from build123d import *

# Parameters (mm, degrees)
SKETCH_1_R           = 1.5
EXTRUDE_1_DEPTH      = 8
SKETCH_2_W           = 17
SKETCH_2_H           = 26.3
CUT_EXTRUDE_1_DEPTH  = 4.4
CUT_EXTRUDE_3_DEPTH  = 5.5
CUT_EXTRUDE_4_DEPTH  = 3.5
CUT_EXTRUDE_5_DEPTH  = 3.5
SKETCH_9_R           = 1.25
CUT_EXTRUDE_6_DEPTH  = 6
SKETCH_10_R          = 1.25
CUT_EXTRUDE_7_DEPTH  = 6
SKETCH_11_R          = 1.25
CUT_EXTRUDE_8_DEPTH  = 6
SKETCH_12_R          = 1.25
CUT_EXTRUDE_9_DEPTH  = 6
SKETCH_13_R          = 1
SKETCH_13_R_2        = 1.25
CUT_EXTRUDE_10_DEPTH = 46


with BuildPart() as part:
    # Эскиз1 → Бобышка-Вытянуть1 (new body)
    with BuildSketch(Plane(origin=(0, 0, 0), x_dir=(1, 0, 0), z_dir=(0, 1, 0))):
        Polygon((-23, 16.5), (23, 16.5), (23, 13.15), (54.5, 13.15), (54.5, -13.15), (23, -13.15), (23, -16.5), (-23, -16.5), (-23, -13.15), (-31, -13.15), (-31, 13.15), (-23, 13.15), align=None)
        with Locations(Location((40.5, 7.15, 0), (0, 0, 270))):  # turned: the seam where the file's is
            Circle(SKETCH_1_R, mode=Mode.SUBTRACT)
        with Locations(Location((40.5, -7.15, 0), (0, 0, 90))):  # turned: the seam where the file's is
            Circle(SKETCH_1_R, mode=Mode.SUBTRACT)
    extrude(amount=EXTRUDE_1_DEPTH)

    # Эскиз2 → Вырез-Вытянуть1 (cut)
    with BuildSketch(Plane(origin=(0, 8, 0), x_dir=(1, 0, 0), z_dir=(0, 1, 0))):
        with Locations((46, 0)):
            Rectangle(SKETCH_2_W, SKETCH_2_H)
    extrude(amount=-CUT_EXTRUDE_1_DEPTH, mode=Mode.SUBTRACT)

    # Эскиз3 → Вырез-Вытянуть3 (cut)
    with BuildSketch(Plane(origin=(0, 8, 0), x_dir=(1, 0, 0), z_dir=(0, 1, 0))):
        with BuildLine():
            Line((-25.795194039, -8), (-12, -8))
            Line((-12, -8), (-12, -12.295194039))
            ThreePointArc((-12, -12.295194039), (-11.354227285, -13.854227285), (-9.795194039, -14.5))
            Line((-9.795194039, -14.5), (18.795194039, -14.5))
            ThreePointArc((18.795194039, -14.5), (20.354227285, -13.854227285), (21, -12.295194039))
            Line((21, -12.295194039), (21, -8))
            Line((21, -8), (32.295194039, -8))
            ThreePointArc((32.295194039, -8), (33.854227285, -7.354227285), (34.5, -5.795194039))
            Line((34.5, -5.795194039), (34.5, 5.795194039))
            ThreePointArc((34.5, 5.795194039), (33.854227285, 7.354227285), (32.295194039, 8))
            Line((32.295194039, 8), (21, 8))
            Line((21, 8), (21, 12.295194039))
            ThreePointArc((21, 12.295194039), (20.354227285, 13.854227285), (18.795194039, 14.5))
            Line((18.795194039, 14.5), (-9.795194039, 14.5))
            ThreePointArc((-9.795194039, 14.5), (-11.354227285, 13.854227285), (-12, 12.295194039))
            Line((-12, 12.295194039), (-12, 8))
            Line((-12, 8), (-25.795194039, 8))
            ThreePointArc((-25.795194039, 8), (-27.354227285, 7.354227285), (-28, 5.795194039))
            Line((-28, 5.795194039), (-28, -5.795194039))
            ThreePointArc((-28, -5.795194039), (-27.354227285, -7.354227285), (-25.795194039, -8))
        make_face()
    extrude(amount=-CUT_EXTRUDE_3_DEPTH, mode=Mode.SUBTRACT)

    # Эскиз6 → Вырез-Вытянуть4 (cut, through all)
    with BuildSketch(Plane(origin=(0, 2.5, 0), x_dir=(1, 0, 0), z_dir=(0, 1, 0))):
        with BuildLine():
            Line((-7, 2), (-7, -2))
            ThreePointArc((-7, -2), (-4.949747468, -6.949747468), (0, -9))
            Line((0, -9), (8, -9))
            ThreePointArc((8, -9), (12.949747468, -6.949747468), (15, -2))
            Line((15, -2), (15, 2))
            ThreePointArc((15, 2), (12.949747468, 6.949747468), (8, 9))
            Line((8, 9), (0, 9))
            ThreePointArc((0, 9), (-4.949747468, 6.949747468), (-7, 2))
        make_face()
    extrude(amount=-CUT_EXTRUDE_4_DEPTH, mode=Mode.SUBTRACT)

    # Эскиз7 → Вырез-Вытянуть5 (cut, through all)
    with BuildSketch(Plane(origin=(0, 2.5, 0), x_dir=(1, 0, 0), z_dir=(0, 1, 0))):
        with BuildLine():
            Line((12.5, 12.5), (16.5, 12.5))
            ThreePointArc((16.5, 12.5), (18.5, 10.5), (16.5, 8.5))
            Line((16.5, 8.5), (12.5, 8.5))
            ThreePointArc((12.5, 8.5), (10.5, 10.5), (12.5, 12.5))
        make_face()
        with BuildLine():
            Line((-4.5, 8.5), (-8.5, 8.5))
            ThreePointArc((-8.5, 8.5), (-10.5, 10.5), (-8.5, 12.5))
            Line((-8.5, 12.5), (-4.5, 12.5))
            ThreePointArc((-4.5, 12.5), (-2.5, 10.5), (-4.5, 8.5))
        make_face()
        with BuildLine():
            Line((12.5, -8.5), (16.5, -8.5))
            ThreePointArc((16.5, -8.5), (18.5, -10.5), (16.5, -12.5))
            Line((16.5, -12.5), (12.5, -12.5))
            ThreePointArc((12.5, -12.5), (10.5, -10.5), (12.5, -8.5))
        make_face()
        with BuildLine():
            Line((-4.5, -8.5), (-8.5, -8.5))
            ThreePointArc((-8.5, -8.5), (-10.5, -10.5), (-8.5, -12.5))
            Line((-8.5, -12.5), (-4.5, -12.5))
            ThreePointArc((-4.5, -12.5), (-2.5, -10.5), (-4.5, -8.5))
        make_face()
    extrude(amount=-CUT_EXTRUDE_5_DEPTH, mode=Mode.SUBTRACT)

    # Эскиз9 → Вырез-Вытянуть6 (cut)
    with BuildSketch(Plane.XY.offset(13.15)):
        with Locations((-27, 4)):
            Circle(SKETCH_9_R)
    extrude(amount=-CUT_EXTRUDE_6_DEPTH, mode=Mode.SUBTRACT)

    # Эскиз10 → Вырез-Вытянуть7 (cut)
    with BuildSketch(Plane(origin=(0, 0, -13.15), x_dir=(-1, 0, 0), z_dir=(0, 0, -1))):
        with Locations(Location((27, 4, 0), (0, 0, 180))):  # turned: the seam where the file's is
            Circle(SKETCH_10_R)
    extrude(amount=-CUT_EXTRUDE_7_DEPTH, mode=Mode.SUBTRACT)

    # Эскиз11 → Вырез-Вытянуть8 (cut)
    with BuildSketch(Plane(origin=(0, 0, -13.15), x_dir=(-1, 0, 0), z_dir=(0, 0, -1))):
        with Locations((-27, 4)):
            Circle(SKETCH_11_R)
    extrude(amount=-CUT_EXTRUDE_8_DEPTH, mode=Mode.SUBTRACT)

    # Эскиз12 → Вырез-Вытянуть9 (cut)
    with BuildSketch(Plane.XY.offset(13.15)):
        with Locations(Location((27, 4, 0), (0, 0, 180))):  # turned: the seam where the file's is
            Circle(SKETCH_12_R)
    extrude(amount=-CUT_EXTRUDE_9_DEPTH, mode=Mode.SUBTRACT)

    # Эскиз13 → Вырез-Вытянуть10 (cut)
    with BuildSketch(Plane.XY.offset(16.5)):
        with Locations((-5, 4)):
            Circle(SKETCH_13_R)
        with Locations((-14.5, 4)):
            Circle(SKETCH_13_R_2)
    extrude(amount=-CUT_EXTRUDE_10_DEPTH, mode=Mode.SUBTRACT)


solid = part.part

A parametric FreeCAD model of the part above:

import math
import FreeCAD as App
import Part
import Sketcher
from FreeCAD import Vector


def add_polygon(sketch, points):
    """Adds a closed chain of lines whose ends are joined by coincident constraints."""
    first, n = sketch.GeometryCount, len(points)
    for a, b in zip(points, points[1:] + points[:1]):
        sketch.addGeometry(Part.LineSegment(App.Vector(*a, 0), App.Vector(*b, 0)), False)
    for i in range(n):
        sketch.addConstraint(Sketcher.Constraint("Coincident", first + i, 2, first + (i + 1) % n, 1))

doc = App.newDocument("Part")
body = doc.addObject("PartDesign::Body", "Body")

sketch1 = body.newObject("Sketcher::SketchObject", "Sketch")
sketch1.AttachmentSupport = (doc.getObject("XZ_Plane"), [""])
sketch1.MapMode = "FlatFace"
add_polygon(sketch1, [(23, -16.5), (-23, -16.5), (-23, -13.2), (-31, -13.2), (-31, 13.2), (-23, 13.2), (-23, 16.5), (23, 16.5), (23, 13.2), (54.5, 13.2), (54.5, -13.2), (23, -13.2)])
sketch1.addGeometry(Part.Circle(Vector(40.5, 7.2, 0), Vector(0, 0, 1), 1.5), False)
sketch1.addGeometry(Part.Circle(Vector(40.5, -7.2, 0), Vector(0, 0, 1), 1.5), False)
sketch1.addConstraint([
    Sketcher.Constraint("Horizontal", 0),
    Sketcher.Constraint("Vertical", 1),
    Sketcher.Constraint("Horizontal", 2),
    Sketcher.Constraint("Vertical", 3),
    Sketcher.Constraint("Horizontal", 4),
    Sketcher.Constraint("Vertical", 5),
    Sketcher.Constraint("Horizontal", 6),
    Sketcher.Constraint("Vertical", 7),
    Sketcher.Constraint("Horizontal", 8),
    Sketcher.Constraint("Vertical", 9),
    Sketcher.Constraint("Horizontal", 10),
    Sketcher.Constraint("Vertical", 11),
    Sketcher.Constraint("Equal", 12, 13),
    Sketcher.Constraint("Symmetric", 0, 2, 6, 2, -1, 1),
    Sketcher.Constraint("Symmetric", 4, 2, 10, 2, -1, 1),
    Sketcher.Constraint("Symmetric", 4, 2, 7, 2, -2),
    Sketcher.Constraint("Symmetric", 12, 3, 13, 3, -1),
    Sketcher.Constraint("Horizontal", 2, 2, 9, 2),
    Sketcher.Constraint("Diameter", 12, 3.0),
    Sketcher.Constraint("DistanceX", 0, 2, 0, 1, 46.0),
    Sketcher.Constraint("DistanceX", 2, 2, 2, 1, 8.0),
    Sketcher.Constraint("DistanceX", 8, 1, 8, 2, 31.5),
    Sketcher.Constraint("DistanceY", 3, 1, 3, 2, 26.3),
    Sketcher.Constraint("DistanceY", 1, 2, 13, 3, 6.0),
    Sketcher.Constraint("DistanceY", 0, 2, 5, 2, 33.0),
    Sketcher.Constraint("DistanceX", 12, 3, 8, 2, 14.0),
])
pad1 = body.newObject("PartDesign::Pad", "Pad")
pad1.Profile = sketch1
pad1.Length = 8
pad1.Reversed = True

sketch2 = body.newObject("Sketcher::SketchObject", "Sketch001")
sketch2.AttachmentSupport = (doc.getObject("XZ_Plane"), [""])
sketch2.MapMode = "FlatFace"
sketch2.AttachmentOffset = App.Placement(Vector(0, 0, -8), App.Rotation())
add_polygon(sketch2, [(38, -13), (38, 13), (54, 13), (54, -13)])
sketch2.addConstraint([
    Sketcher.Constraint("Vertical", 0),
    Sketcher.Constraint("Horizontal", 1),
    Sketcher.Constraint("Vertical", 2),
    Sketcher.Constraint("Horizontal", 3),
    Sketcher.Constraint("DistanceX", 1, 1, 1, 2, 17.0),
    Sketcher.Constraint("DistanceY", 0, 1, 0, 2, 26.3),
    Sketcher.Constraint("DistanceX", -1, 1, 0, 2, 37.5),
    Sketcher.Constraint("DistanceY", -1, 1, 0, 2, 13.15),
])
pocket1 = body.newObject("PartDesign::Pocket", "Pocket")
pocket1.Profile = sketch2
pocket1.Length = 4.4
pocket1.Reversed = True

sketch3 = body.newObject("Sketcher::SketchObject", "Sketch002")
sketch3.AttachmentSupport = (doc.getObject("XZ_Plane"), [""])
sketch3.MapMode = "FlatFace"
sketch3.AttachmentOffset = App.Placement(Vector(0, 0, -8), App.Rotation())
sketch3.addGeometry([
    Part.LineSegment(Vector(-25.8, 8, 0), Vector(-12, 8, 0)),
    Part.LineSegment(Vector(-12, 8, 0), Vector(-12, 12.3, 0)),
    Part.ArcOfCircle(Part.Circle(Vector(-9.8, 12.3, 0), Vector(0, 0, 1), 2.2), math.radians(90), math.radians(180)),
    Part.LineSegment(Vector(-9.8, 14.5, 0), Vector(18.8, 14.5, 0)),
    Part.ArcOfCircle(Part.Circle(Vector(18.8, 12.3, 0), Vector(0, 0, 1), 2.2), math.radians(0), math.radians(90)),
    Part.LineSegment(Vector(21, 12.3, 0), Vector(21, 8, 0)),
    Part.LineSegment(Vector(21, 8, 0), Vector(32.3, 8, 0)),
    Part.ArcOfCircle(Part.Circle(Vector(32.3, 5.8, 0), Vector(0, 0, 1), 2.2), math.radians(0), math.radians(90)),
    Part.LineSegment(Vector(34.5, 5.8, 0), Vector(34.5, -5.8, 0)),
    Part.ArcOfCircle(Part.Circle(Vector(32.3, -5.8, 0), Vector(0, 0, 1), 2.2), math.radians(-90), math.radians(0)),
    Part.LineSegment(Vector(32.3, -8, 0), Vector(21, -8, 0)),
    Part.LineSegment(Vector(21, -8, 0), Vector(21, -12.3, 0)),
    Part.ArcOfCircle(Part.Circle(Vector(18.8, -12.3, 0), Vector(0, 0, 1), 2.2), math.radians(-90), math.radians(0)),
    Part.LineSegment(Vector(18.8, -14.5, 0), Vector(-9.8, -14.5, 0)),
    Part.ArcOfCircle(Part.Circle(Vector(-9.8, -12.3, 0), Vector(0, 0, 1), 2.2), math.radians(-180), math.radians(-90)),
    Part.LineSegment(Vector(-12, -12.3, 0), Vector(-12, -8, 0)),
    Part.LineSegment(Vector(-12, -8, 0), Vector(-25.8, -8, 0)),
    Part.ArcOfCircle(Part.Circle(Vector(-25.8, -5.8, 0), Vector(0, 0, 1), 2.2), math.radians(-180), math.radians(-90)),
    Part.LineSegment(Vector(-28, -5.8, 0), Vector(-28, 5.8, 0)),
    Part.ArcOfCircle(Part.Circle(Vector(-25.8, 5.8, 0), Vector(0, 0, 1), 2.2), math.radians(90), math.radians(180)),
], False)
sketch3.addConstraint([
    Sketcher.Constraint("Coincident", 0, 2, 1, 1),
    Sketcher.Constraint("Tangent", 1, 2, 2, 2),
    Sketcher.Constraint("Tangent", 2, 1, 3, 1),
    Sketcher.Constraint("Tangent", 3, 2, 4, 2),
    Sketcher.Constraint("Tangent", 4, 1, 5, 1),
    Sketcher.Constraint("Coincident", 5, 2, 6, 1),
    Sketcher.Constraint("Tangent", 6, 2, 7, 2),
    Sketcher.Constraint("Tangent", 7, 1, 8, 1),
    Sketcher.Constraint("Tangent", 8, 2, 9, 2),
    Sketcher.Constraint("Tangent", 9, 1, 10, 1),
    Sketcher.Constraint("Coincident", 10, 2, 11, 1),
    Sketcher.Constraint("Tangent", 11, 2, 12, 2),
    Sketcher.Constraint("Tangent", 12, 1, 13, 1),
    Sketcher.Constraint("Tangent", 13, 2, 14, 2),
    Sketcher.Constraint("Tangent", 14, 1, 15, 1),
    Sketcher.Constraint("Coincident", 15, 2, 16, 1),
    Sketcher.Constraint("Tangent", 16, 2, 17, 2),
    Sketcher.Constraint("Tangent", 17, 1, 18, 1),
    Sketcher.Constraint("Tangent", 18, 2, 19, 2),
    Sketcher.Constraint("Tangent", 19, 1, 0, 1),
    Sketcher.Constraint("Horizontal", 0),
    Sketcher.Constraint("Vertical", 1),
    Sketcher.Constraint("Horizontal", 3),
    Sketcher.Constraint("Vertical", 5),
    Sketcher.Constraint("Horizontal", 6),
    Sketcher.Constraint("Vertical", 8),
    Sketcher.Constraint("Horizontal", 10),
    Sketcher.Constraint("Vertical", 11),
    Sketcher.Constraint("Horizontal", 13),
    Sketcher.Constraint("Vertical", 15),
    Sketcher.Constraint("Horizontal", 16),
    Sketcher.Constraint("Vertical", 18),
    Sketcher.Constraint("Equal", 2, 4),
    Sketcher.Constraint("Equal", 4, 7),
    Sketcher.Constraint("Equal", 7, 9),
    Sketcher.Constraint("Equal", 9, 12),
    Sketcher.Constraint("Equal", 12, 14),
    Sketcher.Constraint("Equal", 14, 17),
    Sketcher.Constraint("Equal", 17, 19),
    Sketcher.Constraint("Symmetric", 4, 3, 12, 3, -1),
    Sketcher.Constraint("Symmetric", 0, 2, 15, 2, -1),
    Sketcher.Constraint("Horizontal", 9, 3, 17, 3),
    Sketcher.Constraint("Horizontal", 7, 3, 19, 3),
    Sketcher.Constraint("DistanceX", 0, 2, -1, 1, 12.0),
    Sketcher.Constraint("DistanceY", -1, 1, 0, 2, 8.0),
    Sketcher.Constraint("DistanceX", -1, 1, 4, 1, 21.0),
    Sketcher.Constraint("DistanceX", 17, 1, -1, 1, 28.0),
    Sketcher.Constraint("DistanceY", -1, 1, 2, 1, 14.5),
    Sketcher.Constraint("DistanceX", -1, 1, 7, 1, 34.5),
    Sketcher.Constraint("Radius", 2, 2.204806),
])
pocket2 = body.newObject("PartDesign::Pocket", "Pocket001")
pocket2.Profile = sketch3
pocket2.Length = 5.5
pocket2.Reversed = True

sketch4 = body.newObject("Sketcher::SketchObject", "Sketch003")
sketch4.AttachmentSupport = (doc.getObject("XZ_Plane"), [""])
sketch4.MapMode = "FlatFace"
sketch4.AttachmentOffset = App.Placement(Vector(0, 0, -2.5), App.Rotation())
sketch4.addGeometry([
    Part.LineSegment(Vector(-7, -2, 0), Vector(-7, 2, 0)),
    Part.ArcOfCircle(Part.Circle(Vector(0, 2, 0), Vector(0, 0, 1), 7), math.radians(90), math.radians(180)),
    Part.LineSegment(Vector(0, 9, 0), Vector(8, 9, 0)),
    Part.ArcOfCircle(Part.Circle(Vector(8, 2, 0), Vector(0, 0, 1), 7), math.radians(0), math.radians(90)),
    Part.LineSegment(Vector(15, 2, 0), Vector(15, -2, 0)),
    Part.ArcOfCircle(Part.Circle(Vector(8, -2, 0), Vector(0, 0, 1), 7), math.radians(-90), math.radians(0)),
    Part.LineSegment(Vector(8, -9, 0), Vector(0, -9, 0)),
    Part.ArcOfCircle(Part.Circle(Vector(0, -2, 0), Vector(0, 0, 1), 7), math.radians(-180), math.radians(-90)),
], False)
sketch4.addConstraint([
    Sketcher.Constraint("Tangent", 0, 2, 1, 2),
    Sketcher.Constraint("Tangent", 1, 1, 2, 1),
    Sketcher.Constraint("Tangent", 2, 2, 3, 2),
    Sketcher.Constraint("Tangent", 3, 1, 4, 1),
    Sketcher.Constraint("Tangent", 4, 2, 5, 2),
    Sketcher.Constraint("Tangent", 5, 1, 6, 1),
    Sketcher.Constraint("Tangent", 6, 2, 7, 2),
    Sketcher.Constraint("Tangent", 7, 1, 0, 1),
    Sketcher.Constraint("Vertical", 0),
    Sketcher.Constraint("Horizontal", 2),
    Sketcher.Constraint("Vertical", 4),
    Sketcher.Constraint("Horizontal", 6),
    Sketcher.Constraint("Equal", 1, 3),
    Sketcher.Constraint("Equal", 3, 5),
    Sketcher.Constraint("Equal", 5, 7),
    Sketcher.Constraint("Symmetric", 1, 3, 7, 3, -1, 1),
    Sketcher.Constraint("Radius", 1, 7.0),
    Sketcher.Constraint("DistanceX", 2, 1, 2, 2, 8.0),
    Sketcher.Constraint("DistanceY", 0, 1, 0, 2, 4.0),
])
pocket3 = body.newObject("PartDesign::Pocket", "Pocket002")
pocket3.Profile = sketch4
pocket3.Type = "ThroughAll"
pocket3.Reversed = True

sketch5 = body.newObject("Sketcher::SketchObject", "Sketch004")
sketch5.AttachmentSupport = (doc.getObject("XZ_Plane"), [""])
sketch5.MapMode = "FlatFace"
sketch5.AttachmentOffset = App.Placement(Vector(0, 0, -2.5), App.Rotation())
sketch5.addGeometry([
    Part.LineSegment(Vector(16.5, -12.5, 0), Vector(12.5, -12.5, 0)),
    Part.ArcOfCircle(Part.Circle(Vector(12.5, -10.5, 0), Vector(0, 0, 1), 2), math.radians(90), math.radians(270)),
    Part.LineSegment(Vector(12.5, -8.5, 0), Vector(16.5, -8.5, 0)),
    Part.ArcOfCircle(Part.Circle(Vector(16.5, -10.5, 0), Vector(0, 0, 1), 2), math.radians(-90), math.radians(90)),
    Part.LineSegment(Vector(-8.5, -8.5, 0), Vector(-4.5, -8.5, 0)),
    Part.ArcOfCircle(Part.Circle(Vector(-4.5, -10.5, 0), Vector(0, 0, 1), 2), math.radians(-90), math.radians(90)),
    Part.LineSegment(Vector(-4.5, -12.5, 0), Vector(-8.5, -12.5, 0)),
    Part.ArcOfCircle(Part.Circle(Vector(-8.5, -10.5, 0), Vector(0, 0, 1), 2), math.radians(90), math.radians(270)),
    Part.LineSegment(Vector(16.5, 8.5, 0), Vector(12.5, 8.5, 0)),
    Part.ArcOfCircle(Part.Circle(Vector(12.5, 10.5, 0), Vector(0, 0, 1), 2), math.radians(90), math.radians(270)),
    Part.LineSegment(Vector(12.5, 12.5, 0), Vector(16.5, 12.5, 0)),
    Part.ArcOfCircle(Part.Circle(Vector(16.5, 10.5, 0), Vector(0, 0, 1), 2), math.radians(-90), math.radians(90)),
    Part.LineSegment(Vector(-4.5, 8.5, 0), Vector(-8.5, 8.5, 0)),
    Part.ArcOfCircle(Part.Circle(Vector(-8.5, 10.5, 0), Vector(0, 0, 1), 2), math.radians(90), math.radians(270)),
    Part.LineSegment(Vector(-8.5, 12.5, 0), Vector(-4.5, 12.5, 0)),
    Part.ArcOfCircle(Part.Circle(Vector(-4.5, 10.5, 0), Vector(0, 0, 1), 2), math.radians(-90), math.radians(90)),
], False)
sketch5.addConstraint([
    Sketcher.Constraint("Tangent", 0, 2, 1, 2),
    Sketcher.Constraint("Tangent", 1, 1, 2, 1),
    Sketcher.Constraint("Tangent", 2, 2, 3, 2),
    Sketcher.Constraint("Tangent", 3, 1, 0, 1),
    Sketcher.Constraint("Tangent", 4, 2, 5, 2),
    Sketcher.Constraint("Tangent", 5, 1, 6, 1),
    Sketcher.Constraint("Tangent", 6, 2, 7, 2),
    Sketcher.Constraint("Tangent", 7, 1, 4, 1),
    Sketcher.Constraint("Tangent", 8, 2, 9, 2),
    Sketcher.Constraint("Tangent", 9, 1, 10, 1),
    Sketcher.Constraint("Tangent", 10, 2, 11, 2),
    Sketcher.Constraint("Tangent", 11, 1, 8, 1),
    Sketcher.Constraint("Tangent", 12, 2, 13, 2),
    Sketcher.Constraint("Tangent", 13, 1, 14, 1),
    Sketcher.Constraint("Tangent", 14, 2, 15, 2),
    Sketcher.Constraint("Tangent", 15, 1, 12, 1),
    Sketcher.Constraint("Horizontal", 0),
    Sketcher.Constraint("Horizontal", 2),
    Sketcher.Constraint("Horizontal", 4),
    Sketcher.Constraint("Horizontal", 6),
    Sketcher.Constraint("Horizontal", 8),
    Sketcher.Constraint("Horizontal", 10),
    Sketcher.Constraint("Horizontal", 12),
    Sketcher.Constraint("Horizontal", 14),
    Sketcher.Constraint("Equal", 3, 5),
    Sketcher.Constraint("Equal", 7, 9),
    Sketcher.Constraint("Equal", 11, 13),
    Sketcher.Constraint("Symmetric", 1, 3, 9, 3, -1),
    Sketcher.Constraint("Symmetric", 7, 3, 13, 3, -1),
    Sketcher.Constraint("Horizontal", 3, 3, 5, 3),
    Sketcher.Constraint("Vertical", 3, 3, 11, 3),
    Sketcher.Constraint("Vertical", 5, 3, 15, 3),
    Sketcher.Constraint("Equal", 2, 4),
    Sketcher.Constraint("Radius", 1, 2.0),
    Sketcher.Constraint("DistanceX", 0, 2, 0, 1, 4.0),
    Sketcher.Constraint("DistanceX", 5, 3, 1, 3, 17.0),
    Sketcher.Constraint("DistanceY", 1, 3, 9, 3, 21.0),
    Sketcher.Constraint("DistanceX", -1, 1, 1, 3, 12.5),
])
pocket4 = body.newObject("PartDesign::Pocket", "Pocket003")
pocket4.Profile = sketch5
pocket4.Type = "ThroughAll"
pocket4.Reversed = True

sketch6 = body.newObject("Sketcher::SketchObject", "Sketch005")
sketch6.AttachmentSupport = (doc.getObject("XY_Plane"), [""])
sketch6.MapMode = "FlatFace"
sketch6.AttachmentOffset = App.Placement(Vector(0, 0, 13.15), App.Rotation())
sketch6.addGeometry(Part.Circle(Vector(-27, 4, 0), Vector(0, 0, 1), 1.2), False)
sketch6.addConstraint([
    Sketcher.Constraint("Diameter", 0, 2.5),
    Sketcher.Constraint("DistanceX", 0, 3, -1, 1, 27.0),
    Sketcher.Constraint("DistanceY", -1, 1, 0, 3, 4.0),
])
pocket5 = body.newObject("PartDesign::Pocket", "Pocket004")
pocket5.Profile = sketch6
pocket5.Length = 6

sketch7 = body.newObject("Sketcher::SketchObject", "Sketch006")
sketch7.AttachmentSupport = (doc.getObject("XY_Plane"), [""])
sketch7.MapMode = "FlatFace"
sketch7.AttachmentOffset = App.Placement(Vector(0, 0, -13.15), App.Rotation())
sketch7.addGeometry(Part.Circle(Vector(-27, 4, 0), Vector(0, 0, 1), 1.2), False)
sketch7.addConstraint([
    Sketcher.Constraint("Diameter", 0, 2.5),
    Sketcher.Constraint("DistanceX", 0, 3, -1, 1, 27.0),
    Sketcher.Constraint("DistanceY", -1, 1, 0, 3, 4.0),
])
pocket6 = body.newObject("PartDesign::Pocket", "Pocket005")
pocket6.Profile = sketch7
pocket6.Length = 6
pocket6.Reversed = True

sketch8 = body.newObject("Sketcher::SketchObject", "Sketch007")
sketch8.AttachmentSupport = (doc.getObject("XY_Plane"), [""])
sketch8.MapMode = "FlatFace"
sketch8.AttachmentOffset = App.Placement(Vector(0, 0, -13.15), App.Rotation())
sketch8.addGeometry(Part.Circle(Vector(27, 4, 0), Vector(0, 0, 1), 1.2), False)
sketch8.addConstraint([
    Sketcher.Constraint("Diameter", 0, 2.5),
    Sketcher.Constraint("DistanceX", -1, 1, 0, 3, 27.0),
    Sketcher.Constraint("DistanceY", -1, 1, 0, 3, 4.0),
])
pocket7 = body.newObject("PartDesign::Pocket", "Pocket006")
pocket7.Profile = sketch8
pocket7.Length = 6
pocket7.Reversed = True

sketch9 = body.newObject("Sketcher::SketchObject", "Sketch008")
sketch9.AttachmentSupport = (doc.getObject("XY_Plane"), [""])
sketch9.MapMode = "FlatFace"
sketch9.AttachmentOffset = App.Placement(Vector(0, 0, 13.15), App.Rotation())
sketch9.addGeometry(Part.Circle(Vector(27, 4, 0), Vector(0, 0, 1), 1.2), False)
sketch9.addConstraint([
    Sketcher.Constraint("Diameter", 0, 2.5),
    Sketcher.Constraint("DistanceX", -1, 1, 0, 3, 27.0),
    Sketcher.Constraint("DistanceY", -1, 1, 0, 3, 4.0),
])
pocket8 = body.newObject("PartDesign::Pocket", "Pocket007")
pocket8.Profile = sketch9
pocket8.Length = 6

sketch10 = body.newObject("Sketcher::SketchObject", "Sketch009")
sketch10.AttachmentSupport = (doc.getObject("XY_Plane"), [""])
sketch10.MapMode = "FlatFace"
sketch10.AttachmentOffset = App.Placement(Vector(0, 0, 16.5), App.Rotation())
sketch10.addGeometry([
    Part.Circle(Vector(-5, 4, 0), Vector(0, 0, 1), 1),
    Part.Circle(Vector(-14.5, 4, 0), Vector(0, 0, 1), 1.2),
], False)
sketch10.addConstraint([
    Sketcher.Constraint("Horizontal", 0, 3, 1, 3),
    Sketcher.Constraint("Diameter", 0, 2.0),
    Sketcher.Constraint("Diameter", 1, 2.5),
    Sketcher.Constraint("DistanceX", 0, 3, -1, 1, 5.0),
    Sketcher.Constraint("DistanceY", -1, 1, 0, 3, 4.0),
    Sketcher.Constraint("DistanceX", 1, 3, -1, 1, 14.5),
])
pocket9 = body.newObject("PartDesign::Pocket", "Pocket008")
pocket9.Profile = sketch10
pocket9.Length = 46

doc.recompute()
